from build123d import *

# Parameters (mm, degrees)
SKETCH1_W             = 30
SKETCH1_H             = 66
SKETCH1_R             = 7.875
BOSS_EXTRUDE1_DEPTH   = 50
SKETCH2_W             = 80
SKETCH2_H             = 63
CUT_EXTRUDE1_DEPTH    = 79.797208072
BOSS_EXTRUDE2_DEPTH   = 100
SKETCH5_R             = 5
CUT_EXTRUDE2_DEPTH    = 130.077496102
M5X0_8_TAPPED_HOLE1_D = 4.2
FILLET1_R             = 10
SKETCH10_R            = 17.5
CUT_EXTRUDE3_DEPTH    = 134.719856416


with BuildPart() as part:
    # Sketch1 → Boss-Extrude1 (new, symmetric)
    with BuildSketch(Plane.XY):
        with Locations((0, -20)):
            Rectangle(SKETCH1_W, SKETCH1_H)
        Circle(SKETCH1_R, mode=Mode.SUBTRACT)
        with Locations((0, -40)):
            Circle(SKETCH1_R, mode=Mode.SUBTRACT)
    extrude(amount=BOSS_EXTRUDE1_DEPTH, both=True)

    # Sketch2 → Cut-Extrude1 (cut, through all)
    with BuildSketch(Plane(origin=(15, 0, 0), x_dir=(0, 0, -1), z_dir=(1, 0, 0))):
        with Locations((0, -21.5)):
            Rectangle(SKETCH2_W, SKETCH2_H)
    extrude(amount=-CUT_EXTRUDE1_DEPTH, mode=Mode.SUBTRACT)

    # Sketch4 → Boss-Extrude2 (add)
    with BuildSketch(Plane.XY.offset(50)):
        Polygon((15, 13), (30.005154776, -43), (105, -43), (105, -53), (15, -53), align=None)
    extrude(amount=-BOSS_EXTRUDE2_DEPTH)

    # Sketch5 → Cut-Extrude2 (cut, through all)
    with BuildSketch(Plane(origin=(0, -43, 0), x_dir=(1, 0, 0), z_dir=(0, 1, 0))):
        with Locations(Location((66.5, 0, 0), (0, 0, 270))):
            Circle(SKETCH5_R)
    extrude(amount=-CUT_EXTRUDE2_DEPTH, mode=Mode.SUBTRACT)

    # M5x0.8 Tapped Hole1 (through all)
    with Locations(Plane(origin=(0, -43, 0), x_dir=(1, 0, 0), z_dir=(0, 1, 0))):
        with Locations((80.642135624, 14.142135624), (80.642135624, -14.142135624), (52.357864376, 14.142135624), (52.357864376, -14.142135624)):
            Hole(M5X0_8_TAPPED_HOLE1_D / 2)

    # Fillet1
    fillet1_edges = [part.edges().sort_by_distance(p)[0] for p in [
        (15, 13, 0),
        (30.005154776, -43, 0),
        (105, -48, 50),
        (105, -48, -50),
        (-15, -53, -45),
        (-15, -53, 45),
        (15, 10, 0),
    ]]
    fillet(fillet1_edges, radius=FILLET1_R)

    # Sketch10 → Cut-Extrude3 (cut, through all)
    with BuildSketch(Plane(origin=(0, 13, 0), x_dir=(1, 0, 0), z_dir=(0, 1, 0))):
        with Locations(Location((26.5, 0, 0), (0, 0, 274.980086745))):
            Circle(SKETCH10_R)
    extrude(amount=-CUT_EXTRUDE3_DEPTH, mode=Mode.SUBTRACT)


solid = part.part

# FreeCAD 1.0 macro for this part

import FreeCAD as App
import Part
import Sketcher

V = App.Vector
Q = App.Units.Quantity


def edges_at(feature, points):
    """Names of the edges that pass closest to the given points."""
    edges = feature.Shape.Edges
    near = lambda p: min(range(len(edges)), key=lambda i: edges[i].distToShape(Part.Vertex(*p))[0])
    return sorted({f"Edge{near(p) + 1}" for p in points})


def add_polygon(sketch, points):
    """Adds a closed chain of lines whose ends are joined by coincident constraints."""
    first, n = sketch.GeometryCount, len(points)
    for a, b in zip(points, points[1:] + points[:1]):
        sketch.addGeometry(Part.LineSegment(App.Vector(*a, 0), App.Vector(*b, 0)), False)
    for i in range(n):
        sketch.addConstraint(Sketcher.Constraint("Coincident", first + i, 2, first + (i + 1) % n, 1))

doc = App.newDocument("Part")
params = doc.addObject("Spreadsheet::Sheet", "Params")
for row, (alias, value) in enumerate([
    ("sketch1_diameter", "15.75 mm"),
    ("sketch1_width", "30 mm"),
    ("sketch1_height", "66 mm"),
    ("pad1_length", "100 mm"),
    ("sketch2_width", "63 mm"),
    ("sketch2_height", "80 mm"),
    ("sketch3_width", "90 mm"),
    ("sketch3_height", "66 mm"),
    ("sketch3_height2", "10 mm"),
    ("pad2_length", "100 mm"),
    ("sketch4_diameter", "10 mm"),
    ("sketch5_diameter", "4.2 mm"),
    ("hole_diameter", "4.2 mm"),
    ("fillet_radius", "10 mm"),
    ("sketch6_diameter", "35 mm"),
], start=1):
    params.set(f"A{row}", alias)
    params.set(f"B{row}", "=" + value)
    params.setAlias(f"B{row}", alias)

body = doc.addObject("PartDesign::Body", "Body")

# Sketch on XY plane
sketch1 = body.newObject("Sketcher::SketchObject", "Sketch")
sketch1.AttachmentSupport = (doc.getObject("XY_Plane"), [""])
sketch1.MapMode = "FlatFace"
add_polygon(sketch1, [(-15, 13), (-15, -53), (15, -53), (15, 13)])  # lines 0-3
sketch1.addGeometry(Part.Circle(V(0, -40, 0), V(0, 0, 1), 8), False)  # 4
sketch1.addGeometry(Part.Circle(V(0, 0, 0), V(0, 0, 1), 8), False)  # 5
sketch1.addConstraint(Sketcher.Constraint("Vertical", 0))
sketch1.addConstraint(Sketcher.Constraint("Horizontal", 1))
sketch1.addConstraint(Sketcher.Constraint("Vertical", 2))
sketch1.addConstraint(Sketcher.Constraint("Horizontal", 3))
sketch1.addConstraint(Sketcher.Constraint("Coincident", 5, 3, -1, 1))
sketch1.addConstraint(Sketcher.Constraint("Equal", 4, 5))
sketch1.addConstraint(Sketcher.Constraint("PointOnObject", 4, 3, -2))
sketch1.addConstraint(Sketcher.Constraint("Diameter", 4, Q("15.75 mm")))
sketch1.addConstraint(Sketcher.Constraint("DistanceX", 1, 1, 1, 2, Q("30 mm")))
sketch1.addConstraint(Sketcher.Constraint("DistanceY", 0, 2, 0, 1, Q("66 mm")))
sketch1.addConstraint(Sketcher.Constraint("DistanceY", 4, 3, -1, 1, Q("40 mm")))
sketch1.addConstraint(Sketcher.Constraint("DistanceX", 0, 2, -1, 1, Q("15 mm")))
sketch1.addConstraint(Sketcher.Constraint("DistanceY", 0, 2, -1, 1, Q("53 mm")))
sketch1.setExpression("Constraints[11]", "Params.sketch1_diameter")
sketch1.setExpression("Constraints[12]", "Params.sketch1_width")
sketch1.setExpression("Constraints[13]", "Params.sketch1_height")
pad1 = body.newObject("PartDesign::Pad", "Pad")
pad1.Profile = sketch1
pad1.setExpression("Length", "Params.pad1_length")
pad1.Midplane = True

# Sketch on YZ plane
sketch2 = body.newObject("Sketcher::SketchObject", "Sketch001")
sketch2.AttachmentSupport = (doc.getObject("YZ_Plane"), [""])
sketch2.MapMode = "FlatFace"
sketch2.AttachmentOffset = App.Placement(V(0, 0, 15), App.Rotation())
add_polygon(sketch2, [(10, 40), (-53, 40), (-53, -40), (10, -40)])  # lines 0-3
sketch2.addConstraint(Sketcher.Constraint("Horizontal", 0))
sketch2.addConstraint(Sketcher.Constraint("Vertical", 1))
sketch2.addConstraint(Sketcher.Constraint("Horizontal", 2))
sketch2.addConstraint(Sketcher.Constraint("Vertical", 3))
sketch2.addConstraint(Sketcher.Constraint("DistanceX", 0, 2, 0, 1, Q("63 mm")))
sketch2.addConstraint(Sketcher.Constraint("DistanceY", 1, 2, 1, 1, Q("80 mm")))
sketch2.addConstraint(Sketcher.Constraint("DistanceX", 0, 2, -1, 1, Q("53 mm")))
sketch2.addConstraint(Sketcher.Constraint("DistanceY", -1, 1, 0, 2, Q("40 mm")))
sketch2.setExpression("Constraints[8]", "Params.sketch2_width")
sketch2.setExpression("Constraints[9]", "Params.sketch2_height")
pocket1 = body.newObject("PartDesign::Pocket", "Pocket")
pocket1.Profile = sketch2
pocket1.Type = "ThroughAll"

# Sketch on XY plane
sketch3 = body.newObject("Sketcher::SketchObject", "Sketch002")
sketch3.AttachmentSupport = (doc.getObject("XY_Plane"), [""])
sketch3.MapMode = "FlatFace"
sketch3.AttachmentOffset = App.Placement(V(0, 0, 50), App.Rotation())
add_polygon(sketch3, [(30, -43), (15, 13), (15, -53), (105, -53), (105, -43)])  # lines 0-4
sketch3.addConstraint(Sketcher.Constraint("Vertical", 1))
sketch3.addConstraint(Sketcher.Constraint("Horizontal", 2))
sketch3.addConstraint(Sketcher.Constraint("Vertical", 3))
sketch3.addConstraint(Sketcher.Constraint("Horizontal", 4))
sketch3.addConstraint(Sketcher.Constraint("DistanceX", 2, 1, 2, 2, Q("90 mm")))
sketch3.addConstraint(Sketcher.Constraint("DistanceY", 1, 2, 1, 1, Q("66 mm")))
sketch3.addConstraint(Sketcher.Constraint("DistanceY", 3, 1, 3, 2, Q("10 mm")))
sketch3.addConstraint(Sketcher.Constraint("Angle", 0, Q("105 deg")))
sketch3.addConstraint(Sketcher.Constraint("DistanceX", -1, 1, 0, 2, Q("15 mm")))
sketch3.addConstraint(Sketcher.Constraint("DistanceY", -1, 1, 0, 2, Q("13 mm")))
sketch3.setExpression("Constraints[9]", "Params.sketch3_width")
sketch3.setExpression("Constraints[10]", "Params.sketch3_height")
sketch3.setExpression("Constraints[11]", "Params.sketch3_height2")
pad2 = body.newObject("PartDesign::Pad", "Pad001")
pad2.Profile = sketch3
pad2.setExpression("Length", "Params.pad2_length")
pad2.Reversed = True

# Sketch on XZ plane
sketch4 = body.newObject("Sketcher::SketchObject", "Sketch003")
sketch4.AttachmentSupport = (doc.getObject("XZ_Plane"), [""])
sketch4.MapMode = "FlatFace"
sketch4.AttachmentOffset = App.Placement(V(0, 0, 43), App.Rotation())
sketch4.addGeometry(Part.Circle(V(66, 0, 0), V(0, 0, 1), 5), False)
sketch4.addConstraint(Sketcher.Constraint("PointOnObject", 0, 3, -1))
sketch4.addConstraint(Sketcher.Constraint("Diameter", 0, Q("10 mm")))
sketch4.addConstraint(Sketcher.Constraint("DistanceX", -1, 1, 0, 3, Q("66.5 mm")))
sketch4.setExpression("Constraints[1]", "Params.sketch4_diameter")
pocket2 = body.newObject("PartDesign::Pocket", "Pocket001")
pocket2.Profile = sketch4
pocket2.Type = "ThroughAll"
pocket2.Reversed = True

# Sketch on XZ plane
sketch5 = body.newObject("Sketcher::SketchObject", "Sketch004")
sketch5.AttachmentSupport = (doc.getObject("XZ_Plane"), [""])
sketch5.MapMode = "FlatFace"
sketch5.AttachmentOffset = App.Placement(V(0, 0, 43), App.Rotation())
sketch5.addGeometry(Part.Circle(V(80.6, -14.1, 0), V(0, 0, 1), 2.1), False)
sketch5.addGeometry(Part.Circle(V(80.6, 14.1, 0), V(0, 0, 1), 2.1), False)
sketch5.addGeometry(Part.Circle(V(52.4, -14.1, 0), V(0, 0, 1), 2.1), False)
sketch5.addGeometry(Part.Circle(V(52.4, 14.1, 0), V(0, 0, 1), 2.1), False)
sketch5.addConstraint(Sketcher.Constraint("Equal", 0, 1))
sketch5.addConstraint(Sketcher.Constraint("Equal", 1, 2))
sketch5.addConstraint(Sketcher.Constraint("Equal", 2, 3))
sketch5.addConstraint(Sketcher.Constraint("Symmetric", 0, 3, 1, 3, -1))
sketch5.addConstraint(Sketcher.Constraint("Symmetric", 2, 3, 3, 3, -1))
sketch5.addConstraint(Sketcher.Constraint("Horizontal", 0, 3, 2, 3))
sketch5.addConstraint(Sketcher.Constraint("Diameter", 0, Q("4.2 mm")))
sketch5.addConstraint(Sketcher.Constraint("DistanceY", 0, 3, 1, 3, Q("28.284271 mm")))
sketch5.addConstraint(Sketcher.Constraint("DistanceX", 2, 3, 0, 3, Q("28.284271 mm")))
sketch5.addConstraint(Sketcher.Constraint("DistanceX", -1, 1, 0, 3, Q("80.642136 mm")))
sketch5.setExpression("Constraints[6]", "Params.sketch5_diameter")
doc.recompute()
hole = body.newObject("PartDesign::Hole", "Hole")
hole.Profile = sketch5
hole.ThreadType = "None"
hole.setExpression("Diameter", "Params.hole_diameter")
hole.DepthType = "ThroughAll"
hole.Reversed = True
doc.recompute()

fillet = body.newObject("PartDesign::Fillet", "Fillet")
fillet.Base = (hole, edges_at(hole, [
    (15, 13, 0),
    (30.005, -43, 0),
    (105, -48, 50),
    (105, -48, -50),
    (-15, -53, -45),
    (-15, -53, 45),
    (15, 10, 0),
]))
fillet.setExpression("Radius", "Params.fillet_radius")

# Sketch on XZ plane
sketch6 = body.newObject("Sketcher::SketchObject", "Sketch005")
sketch6.AttachmentSupport = (doc.getObject("XZ_Plane"), [""])
sketch6.MapMode = "FlatFace"
sketch6.AttachmentOffset = App.Placement(V(0, 0, -13), App.Rotation())
sketch6.addGeometry(Part.Circle(V(26, 0, 0), V(0, 0, 1), 18), False)
sketch6.addConstraint(Sketcher.Constraint("PointOnObject", 0, 3, -1))
sketch6.addConstraint(Sketcher.Constraint("Diameter", 0, Q("35 mm")))
sketch6.addConstraint(Sketcher.Constraint("DistanceX", -1, 1, 0, 3, Q("26.5 mm")))
sketch6.setExpression("Constraints[1]", "Params.sketch6_diameter")
pocket3 = body.newObject("PartDesign::Pocket", "Pocket002")
pocket3.Profile = sketch6
pocket3.Type = "ThroughAll"
pocket3.Reversed = True

doc.recompute()
